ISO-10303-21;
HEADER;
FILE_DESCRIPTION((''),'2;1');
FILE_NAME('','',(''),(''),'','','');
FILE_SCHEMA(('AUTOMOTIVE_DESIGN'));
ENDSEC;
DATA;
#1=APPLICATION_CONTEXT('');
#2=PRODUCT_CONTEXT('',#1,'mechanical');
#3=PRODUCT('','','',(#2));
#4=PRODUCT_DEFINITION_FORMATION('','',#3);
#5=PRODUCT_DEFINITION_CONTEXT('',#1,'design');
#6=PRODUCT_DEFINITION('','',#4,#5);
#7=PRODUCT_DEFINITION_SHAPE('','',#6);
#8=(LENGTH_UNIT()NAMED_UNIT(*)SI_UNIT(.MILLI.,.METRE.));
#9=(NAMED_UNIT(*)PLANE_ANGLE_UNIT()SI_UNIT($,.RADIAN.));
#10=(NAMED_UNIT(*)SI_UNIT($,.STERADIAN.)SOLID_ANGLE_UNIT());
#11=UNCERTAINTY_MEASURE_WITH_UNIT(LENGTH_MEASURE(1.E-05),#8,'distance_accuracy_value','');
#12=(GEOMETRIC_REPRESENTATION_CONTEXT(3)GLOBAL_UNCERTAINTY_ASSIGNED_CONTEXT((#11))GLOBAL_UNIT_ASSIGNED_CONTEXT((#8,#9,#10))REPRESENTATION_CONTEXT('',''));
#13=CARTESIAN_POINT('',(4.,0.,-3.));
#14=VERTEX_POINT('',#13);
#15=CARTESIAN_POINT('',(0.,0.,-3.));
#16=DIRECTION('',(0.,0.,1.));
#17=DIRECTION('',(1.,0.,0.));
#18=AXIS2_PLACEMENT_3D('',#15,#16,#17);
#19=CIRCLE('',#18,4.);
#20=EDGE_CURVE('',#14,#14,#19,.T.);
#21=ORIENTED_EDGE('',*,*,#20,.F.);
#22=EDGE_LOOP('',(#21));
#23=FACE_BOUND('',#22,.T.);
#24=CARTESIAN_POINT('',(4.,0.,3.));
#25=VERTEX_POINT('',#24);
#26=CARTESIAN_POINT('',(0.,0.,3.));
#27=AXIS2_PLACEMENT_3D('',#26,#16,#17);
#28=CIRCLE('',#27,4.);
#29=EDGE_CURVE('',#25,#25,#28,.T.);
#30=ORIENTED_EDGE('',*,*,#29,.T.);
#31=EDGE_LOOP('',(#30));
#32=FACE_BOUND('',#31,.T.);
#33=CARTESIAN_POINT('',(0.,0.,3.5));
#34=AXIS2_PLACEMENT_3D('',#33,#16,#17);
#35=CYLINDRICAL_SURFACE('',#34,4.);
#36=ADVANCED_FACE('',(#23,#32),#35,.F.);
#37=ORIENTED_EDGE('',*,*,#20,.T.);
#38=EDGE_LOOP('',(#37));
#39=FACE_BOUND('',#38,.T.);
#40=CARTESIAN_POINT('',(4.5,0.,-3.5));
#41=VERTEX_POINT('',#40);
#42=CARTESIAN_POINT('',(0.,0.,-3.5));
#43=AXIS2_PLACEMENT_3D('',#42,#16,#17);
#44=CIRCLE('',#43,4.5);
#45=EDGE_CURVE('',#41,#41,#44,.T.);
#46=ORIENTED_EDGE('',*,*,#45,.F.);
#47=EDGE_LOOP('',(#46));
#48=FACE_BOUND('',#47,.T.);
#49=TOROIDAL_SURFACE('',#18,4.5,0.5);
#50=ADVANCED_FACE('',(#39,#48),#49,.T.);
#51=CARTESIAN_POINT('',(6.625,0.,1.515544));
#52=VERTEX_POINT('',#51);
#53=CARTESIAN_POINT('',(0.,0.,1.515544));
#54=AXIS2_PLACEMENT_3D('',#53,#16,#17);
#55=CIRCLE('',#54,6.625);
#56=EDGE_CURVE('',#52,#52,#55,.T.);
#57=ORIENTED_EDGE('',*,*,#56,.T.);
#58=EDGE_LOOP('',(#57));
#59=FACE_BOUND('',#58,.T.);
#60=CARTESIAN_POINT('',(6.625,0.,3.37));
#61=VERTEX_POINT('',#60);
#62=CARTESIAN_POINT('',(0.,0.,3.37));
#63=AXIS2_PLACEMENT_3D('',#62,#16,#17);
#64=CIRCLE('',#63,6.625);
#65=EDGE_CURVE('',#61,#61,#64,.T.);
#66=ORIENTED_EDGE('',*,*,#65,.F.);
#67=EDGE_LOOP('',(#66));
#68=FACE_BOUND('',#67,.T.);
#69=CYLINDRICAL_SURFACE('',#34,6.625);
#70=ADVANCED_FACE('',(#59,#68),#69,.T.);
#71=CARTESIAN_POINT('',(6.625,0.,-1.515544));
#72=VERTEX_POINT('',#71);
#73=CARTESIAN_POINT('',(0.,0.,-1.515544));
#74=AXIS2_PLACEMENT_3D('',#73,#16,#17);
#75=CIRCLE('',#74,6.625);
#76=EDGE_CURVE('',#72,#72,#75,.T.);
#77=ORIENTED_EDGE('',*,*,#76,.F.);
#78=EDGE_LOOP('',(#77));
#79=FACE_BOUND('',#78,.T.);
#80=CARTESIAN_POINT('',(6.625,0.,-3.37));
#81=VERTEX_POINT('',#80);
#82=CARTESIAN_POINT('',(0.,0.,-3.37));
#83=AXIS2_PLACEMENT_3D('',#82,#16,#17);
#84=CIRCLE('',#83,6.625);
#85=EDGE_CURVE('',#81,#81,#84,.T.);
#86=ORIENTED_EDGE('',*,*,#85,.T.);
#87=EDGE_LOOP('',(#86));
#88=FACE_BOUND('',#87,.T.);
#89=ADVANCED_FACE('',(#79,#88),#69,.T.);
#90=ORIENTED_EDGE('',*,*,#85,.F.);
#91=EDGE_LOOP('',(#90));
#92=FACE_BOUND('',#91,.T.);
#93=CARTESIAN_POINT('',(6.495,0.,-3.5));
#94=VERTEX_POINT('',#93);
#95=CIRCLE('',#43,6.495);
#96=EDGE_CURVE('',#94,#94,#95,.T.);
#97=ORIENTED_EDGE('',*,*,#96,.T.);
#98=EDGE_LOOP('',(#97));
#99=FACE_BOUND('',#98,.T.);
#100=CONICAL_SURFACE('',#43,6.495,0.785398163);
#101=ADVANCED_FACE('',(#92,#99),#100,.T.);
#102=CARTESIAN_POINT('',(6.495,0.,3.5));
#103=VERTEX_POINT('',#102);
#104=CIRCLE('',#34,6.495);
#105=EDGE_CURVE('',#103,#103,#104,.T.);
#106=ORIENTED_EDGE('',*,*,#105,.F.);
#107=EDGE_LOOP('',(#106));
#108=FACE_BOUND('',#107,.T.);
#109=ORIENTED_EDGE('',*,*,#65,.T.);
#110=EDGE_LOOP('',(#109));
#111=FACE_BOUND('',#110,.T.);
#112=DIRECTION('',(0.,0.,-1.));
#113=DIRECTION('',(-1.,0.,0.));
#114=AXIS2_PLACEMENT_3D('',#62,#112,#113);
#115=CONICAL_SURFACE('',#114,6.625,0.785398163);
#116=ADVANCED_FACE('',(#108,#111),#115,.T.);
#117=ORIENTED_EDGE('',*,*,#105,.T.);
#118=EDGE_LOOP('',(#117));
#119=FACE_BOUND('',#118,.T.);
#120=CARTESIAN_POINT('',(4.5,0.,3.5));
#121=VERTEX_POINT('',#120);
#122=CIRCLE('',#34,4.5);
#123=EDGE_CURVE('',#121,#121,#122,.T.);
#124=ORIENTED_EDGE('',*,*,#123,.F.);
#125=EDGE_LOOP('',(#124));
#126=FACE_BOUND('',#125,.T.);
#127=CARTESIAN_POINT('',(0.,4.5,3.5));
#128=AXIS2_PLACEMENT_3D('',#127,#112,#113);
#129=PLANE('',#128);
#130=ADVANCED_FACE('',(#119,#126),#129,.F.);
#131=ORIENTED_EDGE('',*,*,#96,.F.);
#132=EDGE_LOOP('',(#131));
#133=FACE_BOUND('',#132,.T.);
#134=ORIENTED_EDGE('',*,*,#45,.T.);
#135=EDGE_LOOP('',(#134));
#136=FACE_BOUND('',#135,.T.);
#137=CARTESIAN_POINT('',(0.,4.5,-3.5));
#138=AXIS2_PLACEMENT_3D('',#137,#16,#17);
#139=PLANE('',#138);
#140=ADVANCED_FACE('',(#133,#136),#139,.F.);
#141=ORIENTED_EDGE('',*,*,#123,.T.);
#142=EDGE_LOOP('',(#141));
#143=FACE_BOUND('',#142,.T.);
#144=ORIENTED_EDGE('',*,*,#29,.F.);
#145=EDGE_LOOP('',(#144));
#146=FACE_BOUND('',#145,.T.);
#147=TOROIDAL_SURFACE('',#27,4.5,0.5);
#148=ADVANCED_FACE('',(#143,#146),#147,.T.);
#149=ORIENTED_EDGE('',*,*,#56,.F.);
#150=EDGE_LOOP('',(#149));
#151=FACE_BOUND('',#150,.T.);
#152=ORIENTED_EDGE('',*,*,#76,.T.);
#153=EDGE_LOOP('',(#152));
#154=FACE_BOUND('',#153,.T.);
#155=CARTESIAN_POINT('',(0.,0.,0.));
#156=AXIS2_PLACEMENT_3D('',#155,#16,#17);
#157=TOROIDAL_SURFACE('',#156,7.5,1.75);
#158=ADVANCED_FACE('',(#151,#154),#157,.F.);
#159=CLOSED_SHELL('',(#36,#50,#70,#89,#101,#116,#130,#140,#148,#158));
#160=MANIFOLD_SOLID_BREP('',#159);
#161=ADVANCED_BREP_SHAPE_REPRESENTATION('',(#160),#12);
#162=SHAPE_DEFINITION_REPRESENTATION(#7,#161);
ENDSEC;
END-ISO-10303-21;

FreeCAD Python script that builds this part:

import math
import FreeCAD as App
import Part
import Sketcher

V = App.Vector
Q = App.Units.Quantity

doc = App.newDocument("Part")
body = doc.addObject("PartDesign::Body", "Body")

sketch1 = doc.addObject("Sketcher::SketchObject", "Sketch")
body.addObject(sketch1)
sketch1.AttachmentSupport = (doc.YZ_Plane, [""])
sketch1.MapMode = "FlatFace"
sketch1.addGeometry([
    Part.LineSegment(V(4, 3, 0), V(4, -3, 0)),
    Part.ArcOfCircle(Part.Circle(V(4.5, -3, 0), V(0, 0, 1), 0.5), math.radians(180), math.radians(270)),
    Part.LineSegment(V(4.5, -3.5, 0), V(6.5, -3.5, 0)),
    Part.LineSegment(V(6.5, -3.5, 0), V(6.62, -3.37, 0)),
    Part.LineSegment(V(6.62, -3.37, 0), V(6.62, -1.52, 0)),
    Part.ArcOfCircle(Part.Circle(V(7.5, 0, 0), V(0, 0, 1), 1.75), math.radians(120), math.radians(240)),
    Part.LineSegment(V(6.62, 1.52, 0), V(6.62, 3.37, 0)),
    Part.LineSegment(V(6.62, 3.37, 0), V(6.5, 3.5, 0)),
    Part.LineSegment(V(6.5, 3.5, 0), V(4.5, 3.5, 0)),
    Part.ArcOfCircle(Part.Circle(V(4.5, 3, 0), V(0, 0, 1), 0.5), math.radians(90), math.radians(180)),
], False)
sketch1.addConstraint([
    Sketcher.Constraint("Tangent", 0, 2, 1, 1),
    Sketcher.Constraint("Tangent", 1, 2, 2, 1),
    Sketcher.Constraint("Coincident", 2, 2, 3, 1),
    Sketcher.Constraint("Coincident", 3, 2, 4, 1),
    Sketcher.Constraint("Coincident", 4, 2, 5, 2),
    Sketcher.Constraint("Coincident", 5, 1, 6, 1),
    Sketcher.Constraint("Coincident", 6, 2, 7, 1),
    Sketcher.Constraint("Coincident", 7, 2, 8, 1),
    Sketcher.Constraint("Tangent", 8, 2, 9, 1),
    Sketcher.Constraint("Tangent", 9, 2, 0, 1),
    Sketcher.Constraint("Vertical", 0),
    Sketcher.Constraint("Horizontal", 2),
    Sketcher.Constraint("Vertical", 4),
    Sketcher.Constraint("Vertical", 6),
    Sketcher.Constraint("Horizontal", 8),
    Sketcher.Constraint("Equal", 1, 9),
    Sketcher.Constraint("Symmetric", 4, 2, 5, 1, -1),
    Sketcher.Constraint("Symmetric", 2, 2, 7, 2, -1),
    Sketcher.Constraint("Perpendicular", 3, 7),
    Sketcher.Constraint("Equal", 4, 6),
    Sketcher.Constraint("Radius", 1, Q("0.5 mm")),
    Sketcher.Constraint("DistanceY", 0, 2, 0, 1, Q("6 mm")),
    Sketcher.Constraint("Radius", 5, Q("1.75 mm")),
    Sketcher.Constraint("DistanceX", -1, 1, 0, 2, Q("4 mm")),
    Sketcher.Constraint("DistanceX", 1, 3, 5, 3, Q("3 mm")),
    Sketcher.Constraint("DistanceX", 2, 1, 2, 2, Q("1.995 mm")),
    Sketcher.Constraint("DistanceY", 3, 2, -1, 1, Q("3.37 mm")),
])
revolution = doc.addObject("PartDesign::Revolution", "Revolution")
body.addObject(revolution)
revolution.Profile = sketch1
revolution.ReferenceAxis = (sketch1, ["V_Axis"])
revolution.Angle = 360

doc.recompute()
